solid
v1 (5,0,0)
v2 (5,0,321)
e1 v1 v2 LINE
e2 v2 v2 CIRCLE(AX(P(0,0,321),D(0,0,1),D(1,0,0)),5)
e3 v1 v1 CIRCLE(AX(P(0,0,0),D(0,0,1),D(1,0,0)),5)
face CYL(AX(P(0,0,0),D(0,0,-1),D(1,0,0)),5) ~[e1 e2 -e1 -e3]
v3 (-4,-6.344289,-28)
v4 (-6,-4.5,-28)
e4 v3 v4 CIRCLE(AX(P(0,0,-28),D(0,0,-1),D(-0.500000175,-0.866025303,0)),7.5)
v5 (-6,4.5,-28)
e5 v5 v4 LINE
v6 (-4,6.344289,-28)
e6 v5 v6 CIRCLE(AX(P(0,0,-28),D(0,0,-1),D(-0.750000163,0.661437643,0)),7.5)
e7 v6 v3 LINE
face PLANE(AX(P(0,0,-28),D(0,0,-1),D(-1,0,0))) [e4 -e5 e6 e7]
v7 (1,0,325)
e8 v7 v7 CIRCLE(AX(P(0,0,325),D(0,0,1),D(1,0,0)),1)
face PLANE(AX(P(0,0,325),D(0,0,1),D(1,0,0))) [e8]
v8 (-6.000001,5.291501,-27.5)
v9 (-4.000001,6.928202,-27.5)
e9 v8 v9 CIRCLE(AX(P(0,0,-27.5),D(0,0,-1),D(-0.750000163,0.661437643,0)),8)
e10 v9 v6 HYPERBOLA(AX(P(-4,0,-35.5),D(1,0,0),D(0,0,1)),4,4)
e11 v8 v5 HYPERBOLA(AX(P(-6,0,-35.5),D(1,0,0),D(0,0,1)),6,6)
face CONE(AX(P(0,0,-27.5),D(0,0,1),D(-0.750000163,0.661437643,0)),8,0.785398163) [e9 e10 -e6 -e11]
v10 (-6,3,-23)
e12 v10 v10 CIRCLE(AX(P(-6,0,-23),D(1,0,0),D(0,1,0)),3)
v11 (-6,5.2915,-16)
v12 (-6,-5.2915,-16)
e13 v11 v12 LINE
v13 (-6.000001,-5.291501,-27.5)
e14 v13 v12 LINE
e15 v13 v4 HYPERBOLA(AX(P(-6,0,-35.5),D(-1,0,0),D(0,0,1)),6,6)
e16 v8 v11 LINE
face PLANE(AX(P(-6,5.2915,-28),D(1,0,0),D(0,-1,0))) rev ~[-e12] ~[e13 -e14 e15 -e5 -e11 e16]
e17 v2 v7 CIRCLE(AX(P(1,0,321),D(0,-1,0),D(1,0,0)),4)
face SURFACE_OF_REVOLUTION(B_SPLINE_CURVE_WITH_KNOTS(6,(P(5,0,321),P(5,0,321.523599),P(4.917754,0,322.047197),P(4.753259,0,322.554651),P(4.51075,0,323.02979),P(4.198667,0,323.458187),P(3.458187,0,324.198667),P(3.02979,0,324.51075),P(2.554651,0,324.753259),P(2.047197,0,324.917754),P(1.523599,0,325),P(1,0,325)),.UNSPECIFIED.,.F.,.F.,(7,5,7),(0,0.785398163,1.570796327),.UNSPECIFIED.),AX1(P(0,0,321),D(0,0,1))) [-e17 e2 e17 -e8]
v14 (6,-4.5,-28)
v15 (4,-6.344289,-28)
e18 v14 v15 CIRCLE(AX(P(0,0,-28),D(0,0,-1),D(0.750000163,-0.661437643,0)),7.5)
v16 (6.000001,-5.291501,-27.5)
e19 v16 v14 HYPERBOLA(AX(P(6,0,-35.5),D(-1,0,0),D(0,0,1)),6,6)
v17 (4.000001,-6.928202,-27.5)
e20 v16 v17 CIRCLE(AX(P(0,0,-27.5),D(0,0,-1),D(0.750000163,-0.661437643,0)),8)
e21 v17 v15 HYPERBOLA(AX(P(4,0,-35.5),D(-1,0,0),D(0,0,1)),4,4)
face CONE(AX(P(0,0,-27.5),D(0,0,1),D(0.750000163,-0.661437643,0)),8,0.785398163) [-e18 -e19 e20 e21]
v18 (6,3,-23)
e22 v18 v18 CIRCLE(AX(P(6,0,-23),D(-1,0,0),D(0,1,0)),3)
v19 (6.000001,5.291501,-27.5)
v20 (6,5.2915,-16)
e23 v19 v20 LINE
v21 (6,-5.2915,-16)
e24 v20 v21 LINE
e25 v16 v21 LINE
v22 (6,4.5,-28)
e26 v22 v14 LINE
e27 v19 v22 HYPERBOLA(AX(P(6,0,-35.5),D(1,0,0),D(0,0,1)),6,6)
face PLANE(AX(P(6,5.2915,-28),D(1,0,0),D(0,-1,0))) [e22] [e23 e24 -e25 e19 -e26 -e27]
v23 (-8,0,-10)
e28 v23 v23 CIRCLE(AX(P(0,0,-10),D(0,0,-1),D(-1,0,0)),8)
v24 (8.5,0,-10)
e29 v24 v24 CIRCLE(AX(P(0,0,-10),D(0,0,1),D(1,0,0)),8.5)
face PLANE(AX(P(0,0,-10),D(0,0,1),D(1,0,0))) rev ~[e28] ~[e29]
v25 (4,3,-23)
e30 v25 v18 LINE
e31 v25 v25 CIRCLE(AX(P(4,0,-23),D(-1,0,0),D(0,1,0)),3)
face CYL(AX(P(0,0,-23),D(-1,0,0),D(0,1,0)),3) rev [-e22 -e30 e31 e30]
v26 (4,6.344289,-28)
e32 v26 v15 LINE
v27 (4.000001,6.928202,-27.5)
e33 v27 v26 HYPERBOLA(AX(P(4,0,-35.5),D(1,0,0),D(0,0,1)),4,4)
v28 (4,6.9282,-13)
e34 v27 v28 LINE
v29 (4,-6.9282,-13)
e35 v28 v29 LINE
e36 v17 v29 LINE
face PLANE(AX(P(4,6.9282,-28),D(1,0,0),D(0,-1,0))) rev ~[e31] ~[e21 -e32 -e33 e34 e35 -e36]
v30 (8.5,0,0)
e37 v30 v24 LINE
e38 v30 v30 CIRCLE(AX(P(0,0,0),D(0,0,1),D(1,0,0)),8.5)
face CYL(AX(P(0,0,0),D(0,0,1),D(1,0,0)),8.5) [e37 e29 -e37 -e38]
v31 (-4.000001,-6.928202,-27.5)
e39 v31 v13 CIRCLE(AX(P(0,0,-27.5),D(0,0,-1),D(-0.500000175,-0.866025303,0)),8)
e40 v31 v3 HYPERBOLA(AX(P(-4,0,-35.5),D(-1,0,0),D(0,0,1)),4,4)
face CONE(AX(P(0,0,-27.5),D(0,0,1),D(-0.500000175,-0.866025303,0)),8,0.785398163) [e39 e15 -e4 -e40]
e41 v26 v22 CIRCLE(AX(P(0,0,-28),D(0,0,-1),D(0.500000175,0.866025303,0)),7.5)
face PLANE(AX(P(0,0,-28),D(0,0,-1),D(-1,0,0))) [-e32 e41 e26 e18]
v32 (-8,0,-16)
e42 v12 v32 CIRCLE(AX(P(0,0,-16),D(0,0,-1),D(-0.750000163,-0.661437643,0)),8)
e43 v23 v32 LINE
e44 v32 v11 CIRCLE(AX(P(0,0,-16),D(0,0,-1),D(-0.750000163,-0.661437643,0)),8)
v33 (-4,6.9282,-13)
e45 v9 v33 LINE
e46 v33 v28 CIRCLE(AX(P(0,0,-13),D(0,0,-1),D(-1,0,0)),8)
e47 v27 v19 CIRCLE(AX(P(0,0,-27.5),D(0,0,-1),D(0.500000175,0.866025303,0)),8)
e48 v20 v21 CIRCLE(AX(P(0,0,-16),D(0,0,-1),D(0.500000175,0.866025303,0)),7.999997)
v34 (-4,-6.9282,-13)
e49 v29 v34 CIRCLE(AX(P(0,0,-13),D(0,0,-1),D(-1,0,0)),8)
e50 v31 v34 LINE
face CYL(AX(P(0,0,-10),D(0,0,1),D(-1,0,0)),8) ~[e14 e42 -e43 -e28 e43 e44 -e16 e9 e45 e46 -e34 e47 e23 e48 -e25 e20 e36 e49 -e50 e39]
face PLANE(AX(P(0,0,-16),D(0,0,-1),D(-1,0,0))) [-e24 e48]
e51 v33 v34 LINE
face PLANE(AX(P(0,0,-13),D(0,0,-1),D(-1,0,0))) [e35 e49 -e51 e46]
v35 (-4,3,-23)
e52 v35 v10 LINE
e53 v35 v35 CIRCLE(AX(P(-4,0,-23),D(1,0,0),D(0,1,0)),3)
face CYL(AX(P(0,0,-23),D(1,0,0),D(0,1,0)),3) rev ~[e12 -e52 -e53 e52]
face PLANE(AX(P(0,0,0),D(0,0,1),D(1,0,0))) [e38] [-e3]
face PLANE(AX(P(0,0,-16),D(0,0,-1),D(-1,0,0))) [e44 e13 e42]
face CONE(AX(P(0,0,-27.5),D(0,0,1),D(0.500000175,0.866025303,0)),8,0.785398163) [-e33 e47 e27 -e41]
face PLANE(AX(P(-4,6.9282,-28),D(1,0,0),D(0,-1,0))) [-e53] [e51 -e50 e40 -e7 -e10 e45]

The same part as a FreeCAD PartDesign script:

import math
import FreeCAD as App
import Part
import Sketcher

V = App.Vector


def edges_at(feature, points):
    """Names of the edges that pass closest to the given points."""
    edges = feature.Shape.Edges
    near = lambda p: min(range(len(edges)), key=lambda i: edges[i].distToShape(Part.Vertex(*p))[0])
    return sorted({f"Edge{near(p) + 1}" for p in points})

doc = App.newDocument("Part")
body = doc.addObject("PartDesign::Body", "Body")

# Sketch on XY plane
sketch1 = doc.addObject("Sketcher::SketchObject", "Sketch")
body.addObject(sketch1)
sketch1.AttachmentSupport = (doc.XY_Plane, [""])
sketch1.MapMode = "FlatFace"
sketch1.addGeometry(Part.Circle(V(0, 0, 0), V(0, 0, 1), 8.5), False)
sketch1.addConstraint([
    Sketcher.Constraint("Coincident", 0, 3, -1, 1),
    Sketcher.Constraint("Diameter", 0, 17.0),
])
pad1 = doc.addObject("PartDesign::Pad", "Pad")
body.addObject(pad1)
pad1.Profile = sketch1
pad1.Length = 10
pad1.Reversed = True

# Sketch on XY plane
sketch2 = doc.addObject("Sketcher::SketchObject", "Sketch001")
body.addObject(sketch2)
sketch2.AttachmentSupport = (doc.XY_Plane, [""])
sketch2.MapMode = "FlatFace"
sketch2.addGeometry(Part.Circle(V(0, 0, 0), V(0, 0, 1), 5), False)
sketch2.addConstraint([
    Sketcher.Constraint("Coincident", 0, 3, -1, 1),
    Sketcher.Constraint("Diameter", 0, 10.0),
])
pad2 = doc.addObject("PartDesign::Pad", "Pad001")
body.addObject(pad2)
pad2.Profile = sketch2
pad2.Length = 325

# Sketch on XY plane
sketch3 = doc.addObject("Sketcher::SketchObject", "Sketch002")
body.addObject(sketch3)
sketch3.AttachmentSupport = (doc.XY_Plane, [""])
sketch3.MapMode = "FlatFace"
sketch3.AttachmentOffset = App.Placement(V(0, 0, -10), App.Rotation())
sketch3.addGeometry(Part.Circle(V(0, 0, 0), V(0, 0, 1), 8), False)
sketch3.addConstraint([
    Sketcher.Constraint("Coincident", 0, 3, -1, 1),
    Sketcher.Constraint("Diameter", 0, 16.0),
])
pad3 = doc.addObject("PartDesign::Pad", "Pad002")
body.addObject(pad3)
pad3.Profile = sketch3
pad3.Length = 18
pad3.Reversed = True

# Sketch on XY plane
sketch4 = doc.addObject("Sketcher::SketchObject", "Sketch003")
body.addObject(sketch4)
sketch4.AttachmentSupport = (doc.XY_Plane, [""])
sketch4.MapMode = "FlatFace"
sketch4.AttachmentOffset = App.Placement(V(0, 0, -28), App.Rotation())
sketch4.addGeometry([
    Part.LineSegment(V(-4, -6.9282, 0), V(-4, 6.9282, 0)),
    Part.ArcOfCircle(Part.Circle(V(0, 0, 0), V(0, 0, 1), 8), math.radians(59.999988), math.radians(120.000012)),
    Part.LineSegment(V(4, 6.9282, 0), V(4, -6.9282, 0)),
    Part.ArcOfCircle(Part.Circle(V(0, 0, 0), V(0, 0, 1), 8), math.radians(-120.000012), math.radians(-59.999988)),
], False)
sketch4.addConstraint([
    Sketcher.Constraint("Coincident", 0, 2, 1, 2),
    Sketcher.Constraint("Coincident", 1, 1, 2, 1),
    Sketcher.Constraint("Coincident", 2, 2, 3, 2),
    Sketcher.Constraint("Coincident", 3, 1, 0, 1),
    Sketcher.Constraint("Vertical", 0),
    Sketcher.Constraint("Vertical", 2),
    Sketcher.Constraint("Coincident", 1, 3, -1, 1),
    Sketcher.Constraint("Coincident", 3, 3, -1, 1),
    Sketcher.Constraint("Equal", 1, 3),
    Sketcher.Constraint("Horizontal", 0, 2, 1, 1),
    Sketcher.Constraint("DistanceX", 0, 2, -1, 1, 4.0),
    Sketcher.Constraint("Radius", 1, 8.0),
])
pocket1 = doc.addObject("PartDesign::Pocket", "Pocket")
body.addObject(pocket1)
pocket1.Profile = sketch4
pocket1.Length = 15
pocket1.Reversed = True

# Sketch on XY plane
sketch5 = doc.addObject("Sketcher::SketchObject", "Sketch004")
body.addObject(sketch5)
sketch5.AttachmentSupport = (doc.XY_Plane, [""])
sketch5.MapMode = "FlatFace"
sketch5.AttachmentOffset = App.Placement(V(0, 0, -28), App.Rotation())
sketch5.addGeometry([
    Part.ArcOfCircle(Part.Circle(V(0, 0, 0), V(0, 0, 1), 7.999997), math.radians(-41.409608), math.radians(41.409608)),
    Part.LineSegment(V(6, 5.2915, 0), V(6, -5.2915, 0)),
    Part.LineSegment(V(-6, 5.2915, 0), V(-6, -5.2915, 0)),
    Part.ArcOfCircle(Part.Circle(V(0, 0, 0), V(0, 0, 1), 8), math.radians(138.590392), math.radians(221.409608)),
], False)
sketch5.addConstraint([
    Sketcher.Constraint("Coincident", 0, 1, 1, 2),
    Sketcher.Constraint("Coincident", 1, 1, 0, 2),
    Sketcher.Constraint("Coincident", 2, 1, 3, 1),
    Sketcher.Constraint("Coincident", 3, 2, 2, 2),
    Sketcher.Constraint("Vertical", 1),
    Sketcher.Constraint("Vertical", 2),
    Sketcher.Constraint("Coincident", 0, 3, -1, 1),
    Sketcher.Constraint("Coincident", 3, 3, -1, 1),
    Sketcher.Constraint("Equal", 0, 3),
    Sketcher.Constraint("Horizontal", 1, 1, 2, 1),
    Sketcher.Constraint("DistanceX", -1, 1, 0, 1, 6.0),
    Sketcher.Constraint("Radius", 0, 8.0),
])
pocket2 = doc.addObject("PartDesign::Pocket", "Pocket001")
body.addObject(pocket2)
pocket2.Profile = sketch5
pocket2.Length = 12
pocket2.Reversed = True

# Sketch on YZ plane
sketch6 = doc.addObject("Sketcher::SketchObject", "Sketch005")
body.addObject(sketch6)
sketch6.AttachmentSupport = (doc.YZ_Plane, [""])
sketch6.MapMode = "FlatFace"
sketch6.addGeometry(Part.Circle(V(0, -23, 0), V(0, 0, 1), 3), False)
sketch6.addConstraint([
    Sketcher.Constraint("PointOnObject", 0, 3, -2),
    Sketcher.Constraint("Diameter", 0, 6.0),
    Sketcher.Constraint("DistanceY", 0, 3, -1, 1, 23.0),
])
pocket3 = doc.addObject("PartDesign::Pocket", "Pocket002")
body.addObject(pocket3)
pocket3.Profile = sketch6
pocket3.Type = "ThroughAll"
pocket3.Midplane = True
doc.recompute()

chamfer = doc.addObject("PartDesign::Chamfer", "Chamfer")
body.addObject(chamfer)
chamfer.Base = (pocket3, edges_at(pocket3, [
    (-5.066, -6.191, -28),
    (-5.066, 6.191, -28),
    (5.066, -6.191, -28),
    (5.066, 6.191, -28),
]))
chamfer.Size = 0.5
doc.recompute()

fillet = doc.addObject("PartDesign::Fillet", "Fillet")
body.addObject(fillet)
fillet.Base = (chamfer, edges_at(chamfer, [(-5, 0, 325)]))
fillet.Radius = 4

doc.recompute()
